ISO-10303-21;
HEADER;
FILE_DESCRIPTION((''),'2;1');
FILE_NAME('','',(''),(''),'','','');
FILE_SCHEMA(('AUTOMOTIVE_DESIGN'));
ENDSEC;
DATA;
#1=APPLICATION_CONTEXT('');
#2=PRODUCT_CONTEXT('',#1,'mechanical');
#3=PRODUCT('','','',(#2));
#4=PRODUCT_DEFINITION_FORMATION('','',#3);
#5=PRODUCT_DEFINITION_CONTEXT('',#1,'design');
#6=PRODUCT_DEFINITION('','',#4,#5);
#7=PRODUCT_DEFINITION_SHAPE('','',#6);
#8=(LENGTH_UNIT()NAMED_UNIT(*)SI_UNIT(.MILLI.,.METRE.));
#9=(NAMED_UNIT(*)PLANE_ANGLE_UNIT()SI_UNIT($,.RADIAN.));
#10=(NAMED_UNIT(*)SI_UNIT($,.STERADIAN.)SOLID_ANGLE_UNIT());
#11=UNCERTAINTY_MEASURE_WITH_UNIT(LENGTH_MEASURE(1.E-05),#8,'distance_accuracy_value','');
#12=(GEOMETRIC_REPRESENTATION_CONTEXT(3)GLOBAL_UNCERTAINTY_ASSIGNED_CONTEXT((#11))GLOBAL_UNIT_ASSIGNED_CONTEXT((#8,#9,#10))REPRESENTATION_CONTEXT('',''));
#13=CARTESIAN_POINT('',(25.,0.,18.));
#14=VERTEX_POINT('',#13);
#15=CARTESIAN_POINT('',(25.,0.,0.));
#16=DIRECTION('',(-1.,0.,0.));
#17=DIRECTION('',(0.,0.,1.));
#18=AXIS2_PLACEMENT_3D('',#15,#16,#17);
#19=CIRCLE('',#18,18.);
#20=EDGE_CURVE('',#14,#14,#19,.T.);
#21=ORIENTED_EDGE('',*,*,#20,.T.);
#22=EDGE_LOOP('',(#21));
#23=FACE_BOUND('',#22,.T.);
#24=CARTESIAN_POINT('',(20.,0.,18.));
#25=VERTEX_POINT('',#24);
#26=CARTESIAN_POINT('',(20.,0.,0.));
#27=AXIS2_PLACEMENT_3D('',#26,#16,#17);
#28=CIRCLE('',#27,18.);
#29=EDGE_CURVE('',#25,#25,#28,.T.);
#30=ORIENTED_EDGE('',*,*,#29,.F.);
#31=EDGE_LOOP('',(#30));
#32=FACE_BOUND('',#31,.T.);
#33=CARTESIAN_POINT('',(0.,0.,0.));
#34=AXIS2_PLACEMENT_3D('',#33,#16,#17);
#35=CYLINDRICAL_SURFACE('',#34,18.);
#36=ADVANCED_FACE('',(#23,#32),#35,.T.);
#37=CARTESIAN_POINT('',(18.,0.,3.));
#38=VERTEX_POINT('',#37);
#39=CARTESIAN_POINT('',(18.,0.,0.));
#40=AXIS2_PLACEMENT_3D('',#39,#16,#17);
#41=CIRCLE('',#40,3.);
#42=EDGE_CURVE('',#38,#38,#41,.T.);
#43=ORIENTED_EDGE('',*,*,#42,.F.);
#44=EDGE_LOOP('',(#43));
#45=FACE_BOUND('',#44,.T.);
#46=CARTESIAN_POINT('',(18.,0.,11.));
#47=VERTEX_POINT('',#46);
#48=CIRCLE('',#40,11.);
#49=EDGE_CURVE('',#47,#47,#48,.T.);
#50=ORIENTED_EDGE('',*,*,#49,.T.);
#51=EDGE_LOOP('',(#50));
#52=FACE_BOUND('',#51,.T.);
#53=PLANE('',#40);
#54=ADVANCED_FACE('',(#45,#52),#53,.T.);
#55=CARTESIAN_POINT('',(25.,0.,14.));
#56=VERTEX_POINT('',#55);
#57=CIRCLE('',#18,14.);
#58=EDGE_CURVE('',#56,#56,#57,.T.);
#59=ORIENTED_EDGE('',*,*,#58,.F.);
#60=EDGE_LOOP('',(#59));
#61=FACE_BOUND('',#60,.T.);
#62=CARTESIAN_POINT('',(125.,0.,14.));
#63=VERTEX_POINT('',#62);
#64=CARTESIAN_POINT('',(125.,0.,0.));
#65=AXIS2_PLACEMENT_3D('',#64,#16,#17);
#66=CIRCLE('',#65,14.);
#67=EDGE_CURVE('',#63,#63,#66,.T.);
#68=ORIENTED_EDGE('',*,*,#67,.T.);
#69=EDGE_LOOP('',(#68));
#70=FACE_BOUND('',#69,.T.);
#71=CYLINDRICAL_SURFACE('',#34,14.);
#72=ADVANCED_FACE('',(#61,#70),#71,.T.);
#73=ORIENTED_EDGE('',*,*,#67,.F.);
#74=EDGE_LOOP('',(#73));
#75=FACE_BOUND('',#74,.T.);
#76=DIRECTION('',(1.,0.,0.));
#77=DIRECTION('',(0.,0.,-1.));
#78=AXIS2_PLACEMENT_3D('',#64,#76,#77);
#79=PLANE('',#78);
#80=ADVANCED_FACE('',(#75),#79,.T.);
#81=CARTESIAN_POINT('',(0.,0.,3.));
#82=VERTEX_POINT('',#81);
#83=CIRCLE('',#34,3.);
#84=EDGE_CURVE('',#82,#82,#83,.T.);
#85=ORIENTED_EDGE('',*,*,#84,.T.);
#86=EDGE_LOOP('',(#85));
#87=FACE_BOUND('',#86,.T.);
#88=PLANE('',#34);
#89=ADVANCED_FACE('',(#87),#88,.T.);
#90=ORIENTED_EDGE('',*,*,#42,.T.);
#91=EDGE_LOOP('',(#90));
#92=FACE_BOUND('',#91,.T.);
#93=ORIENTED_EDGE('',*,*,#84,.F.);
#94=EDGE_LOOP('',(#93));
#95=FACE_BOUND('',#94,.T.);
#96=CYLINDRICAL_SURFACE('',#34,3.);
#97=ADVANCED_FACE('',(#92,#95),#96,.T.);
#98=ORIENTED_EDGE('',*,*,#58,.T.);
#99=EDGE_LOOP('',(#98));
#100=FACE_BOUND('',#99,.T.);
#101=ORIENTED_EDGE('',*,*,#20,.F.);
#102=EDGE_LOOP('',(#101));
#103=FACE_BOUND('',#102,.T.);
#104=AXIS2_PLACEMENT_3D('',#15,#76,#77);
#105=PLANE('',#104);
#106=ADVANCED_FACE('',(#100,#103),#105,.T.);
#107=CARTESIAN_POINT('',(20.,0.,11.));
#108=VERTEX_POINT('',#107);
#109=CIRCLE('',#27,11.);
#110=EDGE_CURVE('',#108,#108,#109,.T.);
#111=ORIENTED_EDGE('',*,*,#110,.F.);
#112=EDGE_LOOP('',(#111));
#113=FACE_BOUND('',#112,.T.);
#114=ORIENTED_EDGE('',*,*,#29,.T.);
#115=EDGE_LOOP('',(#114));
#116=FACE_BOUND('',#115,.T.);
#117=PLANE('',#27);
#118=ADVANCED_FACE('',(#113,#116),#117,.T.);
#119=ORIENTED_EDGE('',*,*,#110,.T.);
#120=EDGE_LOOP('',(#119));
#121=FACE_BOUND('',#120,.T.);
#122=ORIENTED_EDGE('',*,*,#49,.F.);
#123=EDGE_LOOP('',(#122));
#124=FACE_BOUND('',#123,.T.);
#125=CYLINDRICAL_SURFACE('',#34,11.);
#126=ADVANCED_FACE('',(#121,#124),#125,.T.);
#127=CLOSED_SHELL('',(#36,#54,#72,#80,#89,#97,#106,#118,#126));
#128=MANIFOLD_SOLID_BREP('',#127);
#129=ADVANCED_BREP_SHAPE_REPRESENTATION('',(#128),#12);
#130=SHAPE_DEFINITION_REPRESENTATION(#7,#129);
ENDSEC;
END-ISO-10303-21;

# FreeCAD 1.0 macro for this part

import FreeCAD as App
import Part
import Sketcher
from FreeCAD import Vector


def add_polygon(sketch, points):
    """Adds a closed chain of lines whose ends are joined by coincident constraints."""
    first, n = sketch.GeometryCount, len(points)
    for a, b in zip(points, points[1:] + points[:1]):
        sketch.addGeometry(Part.LineSegment(App.Vector(*a, 0), App.Vector(*b, 0)), False)
    for i in range(n):
        sketch.addConstraint(Sketcher.Constraint("Coincident", first + i, 2, first + (i + 1) % n, 1))

doc = App.newDocument("Part")
body = doc.addObject("PartDesign::Body", "Body")

# Sketch on XY plane
sketch1 = body.newObject("Sketcher::SketchObject", "Sketch")
sketch1.AttachmentSupport = (doc.getObject("XY_Plane"), [""])
sketch1.MapMode = "FlatFace"
add_polygon(sketch1, [(0, 3), (0, 0), (125, 0), (125, 14), (25, 14), (25, 18), (20, 18), (20, 11), (18, 11), (18, 3)])  # lines 0-9
sketch1.addConstraint([
    Sketcher.Constraint("Vertical", 0),
    Sketcher.Constraint("Horizontal", 1),
    Sketcher.Constraint("Vertical", 2),
    Sketcher.Constraint("Horizontal", 3),
    Sketcher.Constraint("Vertical", 4),
    Sketcher.Constraint("Horizontal", 5),
    Sketcher.Constraint("Vertical", 6),
    Sketcher.Constraint("Horizontal", 7),
    Sketcher.Constraint("Vertical", 8),
    Sketcher.Constraint("Horizontal", 9),
    Sketcher.Constraint("Coincident", 0, 2, -1, 1),
    Sketcher.Constraint("DistanceX", 1, 1, 1, 2, 125.0),
    Sketcher.Constraint("DistanceX", 3, 2, 3, 1, 100.0),
    Sketcher.Constraint("DistanceX", 5, 2, 5, 1, 5.0),
    Sketcher.Constraint("DistanceX", 7, 2, 7, 1, 2.0),
    Sketcher.Constraint("DistanceY", 0, 2, 0, 1, 3.0),
    Sketcher.Constraint("DistanceY", 2, 1, 2, 2, 14.0),
    Sketcher.Constraint("DistanceY", 4, 1, 4, 2, 4.0),
    Sketcher.Constraint("DistanceY", 6, 2, 6, 1, 7.0),
])
revolution = body.newObject("PartDesign::Revolution", "Revolution")
revolution.Profile = sketch1
revolution.ReferenceAxis = (sketch1, ["H_Axis"])
revolution.Angle = 360

doc.recompute()
